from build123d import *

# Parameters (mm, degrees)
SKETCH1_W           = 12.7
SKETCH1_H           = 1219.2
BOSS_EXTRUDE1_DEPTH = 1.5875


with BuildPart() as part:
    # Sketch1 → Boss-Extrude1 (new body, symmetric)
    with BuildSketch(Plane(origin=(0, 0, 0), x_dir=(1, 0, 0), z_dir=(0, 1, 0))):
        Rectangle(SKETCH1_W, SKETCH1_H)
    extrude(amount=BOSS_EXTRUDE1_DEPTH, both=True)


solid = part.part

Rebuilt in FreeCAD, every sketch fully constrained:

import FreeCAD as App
import Part
import Sketcher
Q = App.Units.Quantity


def add_polygon(sketch, points):
    """Adds a closed chain of lines whose ends are joined by coincident constraints."""
    first, n = sketch.GeometryCount, len(points)
    for a, b in zip(points, points[1:] + points[:1]):
        sketch.addGeometry(Part.LineSegment(App.Vector(*a, 0), App.Vector(*b, 0)), False)
    for i in range(n):
        sketch.addConstraint(Sketcher.Constraint("Coincident", first + i, 2, first + (i + 1) % n, 1))

doc = App.newDocument("Part")
body = doc.addObject("PartDesign::Body", "Body")

# Sketch on XZ plane
sketch1 = doc.addObject("Sketcher::SketchObject", "Sketch")
body.addObject(sketch1)
sketch1.AttachmentSupport = (doc.XZ_Plane, [""])
sketch1.MapMode = "FlatFace"
add_polygon(sketch1, [(-6, -610), (-6, 610), (6, 610), (6, -610)])  # lines 0-3
sketch1.addConstraint(Sketcher.Constraint("Vertical", 0))
sketch1.addConstraint(Sketcher.Constraint("Horizontal", 1))
sketch1.addConstraint(Sketcher.Constraint("Vertical", 2))
sketch1.addConstraint(Sketcher.Constraint("Horizontal", 3))
sketch1.addConstraint(Sketcher.Constraint("Symmetric", 0, 2, 2, 2, -1, 1))
sketch1.addConstraint(Sketcher.Constraint("DistanceY", 0, 1, 0, 2, Q("48 in")))
sketch1.addConstraint(Sketcher.Constraint("DistanceX", 1, 1, 1, 2, Q("0.5 in")))
pad1 = doc.addObject("PartDesign::Pad", "Pad")
body.addObject(pad1)
pad1.Profile = sketch1
pad1.Length = Q("0.125 in")
pad1.Midplane = True

doc.recompute()
